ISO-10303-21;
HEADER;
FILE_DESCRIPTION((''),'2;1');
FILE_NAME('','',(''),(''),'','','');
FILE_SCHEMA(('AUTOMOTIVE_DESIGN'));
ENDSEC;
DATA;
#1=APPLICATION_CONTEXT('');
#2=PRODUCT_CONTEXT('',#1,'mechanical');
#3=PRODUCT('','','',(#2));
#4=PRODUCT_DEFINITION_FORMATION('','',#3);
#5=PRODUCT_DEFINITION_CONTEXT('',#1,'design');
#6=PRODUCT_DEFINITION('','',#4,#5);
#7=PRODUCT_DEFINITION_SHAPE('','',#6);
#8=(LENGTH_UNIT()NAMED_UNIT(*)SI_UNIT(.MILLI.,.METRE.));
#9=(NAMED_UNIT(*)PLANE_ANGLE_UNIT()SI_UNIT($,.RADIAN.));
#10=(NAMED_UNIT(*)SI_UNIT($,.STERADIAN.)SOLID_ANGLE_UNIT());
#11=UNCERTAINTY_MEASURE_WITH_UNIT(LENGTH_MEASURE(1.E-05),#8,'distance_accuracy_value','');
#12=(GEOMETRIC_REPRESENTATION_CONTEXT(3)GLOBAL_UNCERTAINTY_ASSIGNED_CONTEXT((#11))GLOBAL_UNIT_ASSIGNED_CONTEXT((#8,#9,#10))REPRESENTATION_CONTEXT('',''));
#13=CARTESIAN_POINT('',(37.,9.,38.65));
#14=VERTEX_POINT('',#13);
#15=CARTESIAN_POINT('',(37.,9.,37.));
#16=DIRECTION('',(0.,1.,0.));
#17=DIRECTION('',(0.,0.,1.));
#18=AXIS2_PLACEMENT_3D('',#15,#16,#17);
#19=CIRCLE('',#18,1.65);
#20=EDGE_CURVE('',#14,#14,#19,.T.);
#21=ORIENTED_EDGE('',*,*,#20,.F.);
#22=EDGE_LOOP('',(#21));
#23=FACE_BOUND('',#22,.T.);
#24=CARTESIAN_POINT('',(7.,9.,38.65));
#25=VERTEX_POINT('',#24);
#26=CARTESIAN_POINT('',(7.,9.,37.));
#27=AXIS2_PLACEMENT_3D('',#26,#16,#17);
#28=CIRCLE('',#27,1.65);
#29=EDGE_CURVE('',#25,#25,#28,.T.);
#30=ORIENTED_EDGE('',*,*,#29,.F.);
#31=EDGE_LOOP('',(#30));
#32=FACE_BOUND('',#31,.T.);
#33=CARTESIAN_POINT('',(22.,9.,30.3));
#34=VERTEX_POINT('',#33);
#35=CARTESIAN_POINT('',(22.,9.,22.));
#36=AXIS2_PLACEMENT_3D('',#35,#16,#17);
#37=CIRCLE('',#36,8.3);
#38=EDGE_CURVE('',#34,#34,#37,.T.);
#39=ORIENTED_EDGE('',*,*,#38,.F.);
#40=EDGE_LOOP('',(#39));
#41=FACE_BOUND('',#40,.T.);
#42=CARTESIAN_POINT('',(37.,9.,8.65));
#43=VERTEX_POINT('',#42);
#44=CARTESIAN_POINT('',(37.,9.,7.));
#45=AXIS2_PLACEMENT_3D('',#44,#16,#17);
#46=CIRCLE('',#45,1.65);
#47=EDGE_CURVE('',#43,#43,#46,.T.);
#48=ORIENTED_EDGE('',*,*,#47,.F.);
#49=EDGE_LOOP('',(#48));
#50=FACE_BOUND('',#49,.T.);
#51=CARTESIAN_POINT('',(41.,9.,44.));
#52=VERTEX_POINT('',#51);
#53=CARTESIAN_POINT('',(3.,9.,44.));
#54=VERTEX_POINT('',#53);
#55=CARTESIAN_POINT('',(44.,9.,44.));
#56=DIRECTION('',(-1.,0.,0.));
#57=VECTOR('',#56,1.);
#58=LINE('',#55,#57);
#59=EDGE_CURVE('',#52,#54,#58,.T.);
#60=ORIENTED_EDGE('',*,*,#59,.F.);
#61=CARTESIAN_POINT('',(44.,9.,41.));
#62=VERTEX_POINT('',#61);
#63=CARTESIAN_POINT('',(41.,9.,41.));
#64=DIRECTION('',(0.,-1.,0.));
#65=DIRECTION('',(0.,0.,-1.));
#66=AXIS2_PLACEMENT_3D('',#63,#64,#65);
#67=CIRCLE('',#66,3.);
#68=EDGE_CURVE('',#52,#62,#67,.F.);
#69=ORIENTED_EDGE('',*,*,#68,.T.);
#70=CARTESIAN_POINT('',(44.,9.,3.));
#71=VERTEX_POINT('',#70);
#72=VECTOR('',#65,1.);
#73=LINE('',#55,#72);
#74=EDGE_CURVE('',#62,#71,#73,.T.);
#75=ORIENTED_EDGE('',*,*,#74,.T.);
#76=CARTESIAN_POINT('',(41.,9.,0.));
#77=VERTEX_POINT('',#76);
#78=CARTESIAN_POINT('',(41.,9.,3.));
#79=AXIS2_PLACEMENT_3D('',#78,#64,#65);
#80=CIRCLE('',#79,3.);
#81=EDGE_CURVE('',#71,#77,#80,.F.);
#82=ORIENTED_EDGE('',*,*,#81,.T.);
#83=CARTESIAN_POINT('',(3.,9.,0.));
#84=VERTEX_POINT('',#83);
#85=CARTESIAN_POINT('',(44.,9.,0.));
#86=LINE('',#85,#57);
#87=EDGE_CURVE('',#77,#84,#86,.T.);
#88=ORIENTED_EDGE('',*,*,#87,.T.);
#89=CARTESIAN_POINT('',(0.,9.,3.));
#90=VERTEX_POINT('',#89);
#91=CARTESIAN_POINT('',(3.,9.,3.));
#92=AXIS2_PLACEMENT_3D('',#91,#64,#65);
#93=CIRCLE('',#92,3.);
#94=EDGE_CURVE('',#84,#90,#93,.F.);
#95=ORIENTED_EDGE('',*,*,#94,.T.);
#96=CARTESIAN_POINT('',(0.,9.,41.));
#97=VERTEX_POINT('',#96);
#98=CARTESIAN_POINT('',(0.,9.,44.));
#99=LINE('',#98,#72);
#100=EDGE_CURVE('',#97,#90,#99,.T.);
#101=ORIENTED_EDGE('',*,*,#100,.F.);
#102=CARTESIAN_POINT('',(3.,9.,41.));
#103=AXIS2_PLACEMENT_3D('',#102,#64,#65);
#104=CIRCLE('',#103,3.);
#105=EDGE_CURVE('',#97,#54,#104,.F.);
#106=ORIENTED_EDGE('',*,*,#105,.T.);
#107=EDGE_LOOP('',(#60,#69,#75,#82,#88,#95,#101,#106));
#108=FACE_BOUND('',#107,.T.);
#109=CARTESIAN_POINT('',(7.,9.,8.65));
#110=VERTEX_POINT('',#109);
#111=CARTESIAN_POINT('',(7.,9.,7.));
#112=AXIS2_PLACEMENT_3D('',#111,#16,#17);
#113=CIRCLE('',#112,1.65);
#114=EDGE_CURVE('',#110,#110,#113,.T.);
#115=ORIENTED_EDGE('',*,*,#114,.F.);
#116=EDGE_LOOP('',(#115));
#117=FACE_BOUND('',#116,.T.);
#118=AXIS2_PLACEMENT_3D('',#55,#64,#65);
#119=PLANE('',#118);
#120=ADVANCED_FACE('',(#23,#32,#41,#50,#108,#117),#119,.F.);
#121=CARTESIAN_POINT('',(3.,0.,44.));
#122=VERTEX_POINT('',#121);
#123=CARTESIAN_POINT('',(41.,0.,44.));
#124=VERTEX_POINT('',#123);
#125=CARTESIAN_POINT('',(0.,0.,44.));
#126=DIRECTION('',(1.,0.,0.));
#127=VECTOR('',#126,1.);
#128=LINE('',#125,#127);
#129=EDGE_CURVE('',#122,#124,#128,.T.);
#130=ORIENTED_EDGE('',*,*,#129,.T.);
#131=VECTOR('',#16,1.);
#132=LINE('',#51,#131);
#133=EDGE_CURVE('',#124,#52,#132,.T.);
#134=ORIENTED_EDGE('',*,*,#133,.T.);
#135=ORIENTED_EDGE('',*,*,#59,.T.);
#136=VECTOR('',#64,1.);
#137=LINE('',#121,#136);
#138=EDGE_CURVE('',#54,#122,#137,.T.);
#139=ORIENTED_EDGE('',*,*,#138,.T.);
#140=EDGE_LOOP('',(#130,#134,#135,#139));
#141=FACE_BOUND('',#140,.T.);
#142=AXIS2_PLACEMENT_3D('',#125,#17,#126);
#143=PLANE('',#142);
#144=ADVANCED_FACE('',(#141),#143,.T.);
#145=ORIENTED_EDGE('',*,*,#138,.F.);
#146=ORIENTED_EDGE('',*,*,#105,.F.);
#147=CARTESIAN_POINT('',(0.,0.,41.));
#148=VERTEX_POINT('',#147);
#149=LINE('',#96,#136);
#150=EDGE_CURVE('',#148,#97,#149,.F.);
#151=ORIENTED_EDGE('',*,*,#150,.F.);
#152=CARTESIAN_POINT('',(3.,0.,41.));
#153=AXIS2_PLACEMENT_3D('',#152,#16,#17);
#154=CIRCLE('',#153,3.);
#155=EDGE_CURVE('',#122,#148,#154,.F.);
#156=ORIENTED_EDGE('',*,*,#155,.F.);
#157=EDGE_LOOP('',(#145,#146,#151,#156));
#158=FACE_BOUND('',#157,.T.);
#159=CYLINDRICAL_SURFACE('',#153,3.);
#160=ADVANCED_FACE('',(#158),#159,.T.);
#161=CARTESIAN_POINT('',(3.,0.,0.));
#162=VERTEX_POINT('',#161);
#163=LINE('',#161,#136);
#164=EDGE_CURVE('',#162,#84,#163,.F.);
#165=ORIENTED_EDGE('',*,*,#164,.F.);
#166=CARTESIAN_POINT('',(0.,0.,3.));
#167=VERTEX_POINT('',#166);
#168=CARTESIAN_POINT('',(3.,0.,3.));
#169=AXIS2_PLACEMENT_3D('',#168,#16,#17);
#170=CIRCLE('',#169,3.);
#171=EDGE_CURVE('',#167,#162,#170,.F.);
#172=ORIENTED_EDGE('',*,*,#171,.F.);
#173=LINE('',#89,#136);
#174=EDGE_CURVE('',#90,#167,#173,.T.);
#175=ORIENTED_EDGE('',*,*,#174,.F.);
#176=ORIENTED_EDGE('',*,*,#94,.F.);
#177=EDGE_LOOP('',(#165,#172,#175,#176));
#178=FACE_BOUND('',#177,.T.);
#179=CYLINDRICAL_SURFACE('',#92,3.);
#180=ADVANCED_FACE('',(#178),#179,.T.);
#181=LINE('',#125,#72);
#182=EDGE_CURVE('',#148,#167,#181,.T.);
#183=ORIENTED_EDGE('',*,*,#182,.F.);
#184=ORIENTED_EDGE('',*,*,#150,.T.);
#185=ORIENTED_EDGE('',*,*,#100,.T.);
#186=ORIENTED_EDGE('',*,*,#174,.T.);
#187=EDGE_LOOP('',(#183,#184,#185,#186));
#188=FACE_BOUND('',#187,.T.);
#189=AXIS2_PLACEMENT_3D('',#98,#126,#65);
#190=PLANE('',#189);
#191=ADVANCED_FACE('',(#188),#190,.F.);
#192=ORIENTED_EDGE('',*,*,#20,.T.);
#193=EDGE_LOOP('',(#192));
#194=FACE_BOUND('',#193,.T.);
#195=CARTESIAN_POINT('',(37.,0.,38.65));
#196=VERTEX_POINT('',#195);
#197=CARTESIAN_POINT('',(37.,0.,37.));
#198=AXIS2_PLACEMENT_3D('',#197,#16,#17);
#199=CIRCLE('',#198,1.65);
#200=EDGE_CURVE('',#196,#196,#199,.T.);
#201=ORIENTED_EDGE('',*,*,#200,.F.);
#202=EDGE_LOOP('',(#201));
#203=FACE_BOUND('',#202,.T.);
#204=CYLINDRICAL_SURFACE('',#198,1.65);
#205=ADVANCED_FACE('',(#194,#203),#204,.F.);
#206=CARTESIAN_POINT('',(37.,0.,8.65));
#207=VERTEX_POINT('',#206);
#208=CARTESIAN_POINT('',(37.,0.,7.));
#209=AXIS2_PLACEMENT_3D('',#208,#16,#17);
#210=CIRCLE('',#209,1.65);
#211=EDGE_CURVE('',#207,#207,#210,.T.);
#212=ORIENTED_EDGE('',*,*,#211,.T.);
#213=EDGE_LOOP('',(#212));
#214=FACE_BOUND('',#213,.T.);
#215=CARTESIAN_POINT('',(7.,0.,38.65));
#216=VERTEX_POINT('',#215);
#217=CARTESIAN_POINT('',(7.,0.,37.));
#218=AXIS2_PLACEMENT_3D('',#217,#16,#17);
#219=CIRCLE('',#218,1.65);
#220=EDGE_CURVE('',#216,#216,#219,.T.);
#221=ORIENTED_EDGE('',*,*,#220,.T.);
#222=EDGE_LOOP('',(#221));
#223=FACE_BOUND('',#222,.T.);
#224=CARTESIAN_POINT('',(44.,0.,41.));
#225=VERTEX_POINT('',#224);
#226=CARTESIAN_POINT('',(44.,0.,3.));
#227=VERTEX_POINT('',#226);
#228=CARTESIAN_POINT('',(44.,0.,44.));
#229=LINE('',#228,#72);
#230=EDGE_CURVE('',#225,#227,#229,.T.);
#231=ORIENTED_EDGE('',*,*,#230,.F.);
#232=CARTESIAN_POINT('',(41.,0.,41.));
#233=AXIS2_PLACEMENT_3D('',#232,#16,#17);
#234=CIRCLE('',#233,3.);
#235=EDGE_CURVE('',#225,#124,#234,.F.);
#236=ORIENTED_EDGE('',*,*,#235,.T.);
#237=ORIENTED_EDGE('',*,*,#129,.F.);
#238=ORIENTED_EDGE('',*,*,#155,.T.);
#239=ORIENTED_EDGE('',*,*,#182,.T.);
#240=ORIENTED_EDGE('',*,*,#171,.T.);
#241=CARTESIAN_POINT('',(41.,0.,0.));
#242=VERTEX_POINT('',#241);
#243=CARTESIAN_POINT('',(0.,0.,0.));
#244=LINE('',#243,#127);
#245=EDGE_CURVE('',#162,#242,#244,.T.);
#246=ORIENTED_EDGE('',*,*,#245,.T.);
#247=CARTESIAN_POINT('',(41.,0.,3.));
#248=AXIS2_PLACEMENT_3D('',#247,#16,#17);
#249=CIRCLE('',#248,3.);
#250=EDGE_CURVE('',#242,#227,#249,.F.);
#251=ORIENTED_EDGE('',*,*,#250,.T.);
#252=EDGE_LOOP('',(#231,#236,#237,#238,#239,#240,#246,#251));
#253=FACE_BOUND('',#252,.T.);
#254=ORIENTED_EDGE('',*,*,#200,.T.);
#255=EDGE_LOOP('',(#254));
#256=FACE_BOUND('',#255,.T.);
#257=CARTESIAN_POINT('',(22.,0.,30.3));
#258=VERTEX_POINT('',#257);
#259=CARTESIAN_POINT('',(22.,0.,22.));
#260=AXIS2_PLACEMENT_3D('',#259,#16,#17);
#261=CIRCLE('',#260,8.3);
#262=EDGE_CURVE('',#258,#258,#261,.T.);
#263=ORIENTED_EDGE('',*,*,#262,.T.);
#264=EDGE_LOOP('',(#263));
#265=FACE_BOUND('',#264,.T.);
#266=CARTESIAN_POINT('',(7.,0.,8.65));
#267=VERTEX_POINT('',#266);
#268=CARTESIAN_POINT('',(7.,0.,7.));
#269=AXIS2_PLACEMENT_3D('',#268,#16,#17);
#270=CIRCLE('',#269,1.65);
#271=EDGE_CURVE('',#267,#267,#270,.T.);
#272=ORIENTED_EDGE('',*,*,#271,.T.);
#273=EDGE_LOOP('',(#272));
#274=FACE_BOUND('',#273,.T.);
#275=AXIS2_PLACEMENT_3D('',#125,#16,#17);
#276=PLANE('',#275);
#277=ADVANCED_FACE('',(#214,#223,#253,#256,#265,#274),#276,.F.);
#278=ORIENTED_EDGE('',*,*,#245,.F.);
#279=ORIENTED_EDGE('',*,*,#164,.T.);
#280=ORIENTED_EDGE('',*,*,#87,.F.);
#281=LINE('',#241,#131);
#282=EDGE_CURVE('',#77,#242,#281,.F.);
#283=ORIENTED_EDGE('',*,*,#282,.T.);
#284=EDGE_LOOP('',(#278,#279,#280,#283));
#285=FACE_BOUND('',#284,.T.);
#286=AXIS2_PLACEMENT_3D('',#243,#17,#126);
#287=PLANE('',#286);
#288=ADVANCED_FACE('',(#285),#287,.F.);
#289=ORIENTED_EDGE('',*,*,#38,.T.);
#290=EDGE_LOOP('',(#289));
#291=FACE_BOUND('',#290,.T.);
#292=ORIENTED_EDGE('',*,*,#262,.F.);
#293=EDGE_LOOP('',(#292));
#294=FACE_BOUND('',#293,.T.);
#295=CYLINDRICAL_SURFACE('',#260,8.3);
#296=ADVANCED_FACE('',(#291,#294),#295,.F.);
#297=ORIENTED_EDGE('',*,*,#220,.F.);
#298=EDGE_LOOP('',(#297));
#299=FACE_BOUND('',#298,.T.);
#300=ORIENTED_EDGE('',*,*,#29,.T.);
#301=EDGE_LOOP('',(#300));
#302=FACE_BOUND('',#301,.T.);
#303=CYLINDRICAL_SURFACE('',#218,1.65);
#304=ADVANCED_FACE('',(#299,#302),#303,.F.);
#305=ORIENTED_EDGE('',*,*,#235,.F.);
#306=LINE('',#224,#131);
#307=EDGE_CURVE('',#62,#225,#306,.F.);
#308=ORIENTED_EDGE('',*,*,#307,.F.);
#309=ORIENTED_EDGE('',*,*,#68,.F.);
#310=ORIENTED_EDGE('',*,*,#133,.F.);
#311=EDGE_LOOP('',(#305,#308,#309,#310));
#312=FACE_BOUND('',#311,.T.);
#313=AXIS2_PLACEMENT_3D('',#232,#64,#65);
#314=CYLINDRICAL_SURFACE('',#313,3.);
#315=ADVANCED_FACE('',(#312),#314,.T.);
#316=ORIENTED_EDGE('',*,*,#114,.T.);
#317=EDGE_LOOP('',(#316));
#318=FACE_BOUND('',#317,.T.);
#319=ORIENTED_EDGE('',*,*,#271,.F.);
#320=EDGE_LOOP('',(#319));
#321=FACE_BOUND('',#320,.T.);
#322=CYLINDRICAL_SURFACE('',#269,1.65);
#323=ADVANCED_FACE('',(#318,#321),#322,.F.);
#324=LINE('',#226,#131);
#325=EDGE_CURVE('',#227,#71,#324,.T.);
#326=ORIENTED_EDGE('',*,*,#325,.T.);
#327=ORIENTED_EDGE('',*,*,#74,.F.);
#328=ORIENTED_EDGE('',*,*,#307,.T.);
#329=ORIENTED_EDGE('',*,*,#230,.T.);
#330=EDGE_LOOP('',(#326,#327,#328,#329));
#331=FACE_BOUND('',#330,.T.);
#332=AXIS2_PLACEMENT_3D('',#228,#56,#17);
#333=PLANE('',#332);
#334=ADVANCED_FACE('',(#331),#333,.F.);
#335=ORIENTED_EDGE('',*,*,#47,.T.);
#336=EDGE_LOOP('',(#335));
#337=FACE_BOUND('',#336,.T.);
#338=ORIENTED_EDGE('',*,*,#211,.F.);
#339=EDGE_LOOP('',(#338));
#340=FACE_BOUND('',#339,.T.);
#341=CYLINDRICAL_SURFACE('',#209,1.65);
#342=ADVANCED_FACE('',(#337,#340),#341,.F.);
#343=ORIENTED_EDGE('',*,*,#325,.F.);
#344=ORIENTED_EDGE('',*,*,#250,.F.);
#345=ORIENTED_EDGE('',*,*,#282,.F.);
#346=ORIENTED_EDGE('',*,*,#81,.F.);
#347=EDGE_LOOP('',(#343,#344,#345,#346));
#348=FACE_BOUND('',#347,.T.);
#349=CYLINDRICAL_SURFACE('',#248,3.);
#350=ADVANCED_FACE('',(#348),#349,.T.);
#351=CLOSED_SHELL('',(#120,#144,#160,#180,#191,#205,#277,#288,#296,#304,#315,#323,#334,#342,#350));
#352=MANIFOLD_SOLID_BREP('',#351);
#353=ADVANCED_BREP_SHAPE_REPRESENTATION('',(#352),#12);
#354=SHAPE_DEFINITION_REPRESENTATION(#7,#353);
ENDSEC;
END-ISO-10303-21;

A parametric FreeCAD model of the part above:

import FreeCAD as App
import Part
import Sketcher
from FreeCAD import Vector
Q = App.Units.Quantity


def edges_at(feature, points):
    """Names of the edges that pass closest to the given points."""
    edges = feature.Shape.Edges
    near = lambda p: min(range(len(edges)), key=lambda i: edges[i].distToShape(Part.Vertex(*p))[0])
    return sorted({f"Edge{near(p) + 1}" for p in points})


def add_polygon(sketch, points):
    """Adds a closed chain of lines whose ends are joined by coincident constraints."""
    first, n = sketch.GeometryCount, len(points)
    for a, b in zip(points, points[1:] + points[:1]):
        sketch.addGeometry(Part.LineSegment(App.Vector(*a, 0), App.Vector(*b, 0)), False)
    for i in range(n):
        sketch.addConstraint(Sketcher.Constraint("Coincident", first + i, 2, first + (i + 1) % n, 1))

doc = App.newDocument("Part")
body = doc.addObject("PartDesign::Body", "Body")

# Sketch on XY plane
sketch1 = body.newObject("Sketcher::SketchObject", "Sketch")
sketch1.AttachmentSupport = (doc.getObject("XY_Plane"), [""])
sketch1.MapMode = "FlatFace"
add_polygon(sketch1, [(0, 9), (0, 0), (44, 0), (44, 9)])  # lines 0-3
sketch1.addConstraint(Sketcher.Constraint("Vertical", 0))
sketch1.addConstraint(Sketcher.Constraint("Horizontal", 1))
sketch1.addConstraint(Sketcher.Constraint("Vertical", 2))
sketch1.addConstraint(Sketcher.Constraint("Horizontal", 3))
sketch1.addConstraint(Sketcher.Constraint("Coincident", 0, 2, -1, 1))
sketch1.addConstraint(Sketcher.Constraint("DistanceX", 1, 1, 1, 2, Q("44 mm")))
sketch1.addConstraint(Sketcher.Constraint("DistanceY", 0, 2, 0, 1, Q("9 mm")))
pad1 = body.newObject("PartDesign::Pad", "Pad")
pad1.Profile = sketch1
pad1.Length = 44
doc.recompute()

fillet = body.newObject("PartDesign::Fillet", "Fillet")
fillet.Base = (pad1, edges_at(pad1, [
    (44, 4.5, 44),
    (0, 4.5, 44),
    (44, 4.5, 0),
    (0, 4.5, 0),
]))
fillet.Radius = 3

# Sketch on XZ plane
sketch2 = body.newObject("Sketcher::SketchObject", "Sketch001")
sketch2.AttachmentSupport = (doc.getObject("XZ_Plane"), [""])
sketch2.MapMode = "FlatFace"
sketch2.AttachmentOffset = App.Placement(Vector(0, 0, -9), App.Rotation())
sketch2.addGeometry(Part.Circle(Vector(22, 22, 0), Vector(0, 0, 1), 8), False)
sketch2.addConstraint(Sketcher.Constraint("Diameter", 0, Q("16.6 mm")))
sketch2.addConstraint(Sketcher.Constraint("DistanceX", -1, 1, 0, 3, Q("22 mm")))
sketch2.addConstraint(Sketcher.Constraint("DistanceY", -1, 1, 0, 3, Q("22 mm")))
pocket1 = body.newObject("PartDesign::Pocket", "Pocket")
pocket1.Profile = sketch2
pocket1.Type = "ThroughAll"
pocket1.Reversed = True

# Sketch on XZ plane
sketch3 = body.newObject("Sketcher::SketchObject", "Sketch002")
sketch3.AttachmentSupport = (doc.getObject("XZ_Plane"), [""])
sketch3.MapMode = "FlatFace"
sketch3.AttachmentOffset = App.Placement(Vector(0, 0, -9), App.Rotation())
sketch3.addGeometry(Part.Circle(Vector(7, 7, 0), Vector(0, 0, 1), 1.6), False)
sketch3.addConstraint(Sketcher.Constraint("Diameter", 0, Q("3.3 mm")))
sketch3.addConstraint(Sketcher.Constraint("DistanceX", -1, 1, 0, 3, Q("7 mm")))
sketch3.addConstraint(Sketcher.Constraint("DistanceY", -1, 1, 0, 3, Q("7 mm")))
pocket2 = body.newObject("PartDesign::Pocket", "Pocket001")
pocket2.Profile = sketch3
pocket2.Type = "ThroughAll"
pocket2.Reversed = True

# Sketch on XZ plane
sketch4 = body.newObject("Sketcher::SketchObject", "Sketch003")
sketch4.AttachmentSupport = (doc.getObject("XZ_Plane"), [""])
sketch4.MapMode = "FlatFace"
sketch4.AttachmentOffset = App.Placement(Vector(0, 0, -9), App.Rotation())
sketch4.addGeometry(Part.Circle(Vector(7, 37, 0), Vector(0, 0, 1), 1.6), False)
sketch4.addConstraint(Sketcher.Constraint("Diameter", 0, Q("3.3 mm")))
sketch4.addConstraint(Sketcher.Constraint("DistanceX", -1, 1, 0, 3, Q("7 mm")))
sketch4.addConstraint(Sketcher.Constraint("DistanceY", -1, 1, 0, 3, Q("37 mm")))
pocket3 = body.newObject("PartDesign::Pocket", "Pocket002")
pocket3.Profile = sketch4
pocket3.Type = "ThroughAll"
pocket3.Reversed = True

# Sketch on XZ plane
sketch5 = body.newObject("Sketcher::SketchObject", "Sketch004")
sketch5.AttachmentSupport = (doc.getObject("XZ_Plane"), [""])
sketch5.MapMode = "FlatFace"
sketch5.AttachmentOffset = App.Placement(Vector(0, 0, -9), App.Rotation())
sketch5.addGeometry(Part.Circle(Vector(37, 7, 0), Vector(0, 0, 1), 1.6), False)
sketch5.addConstraint(Sketcher.Constraint("Diameter", 0, Q("3.3 mm")))
sketch5.addConstraint(Sketcher.Constraint("DistanceX", -1, 1, 0, 3, Q("37 mm")))
sketch5.addConstraint(Sketcher.Constraint("DistanceY", -1, 1, 0, 3, Q("7 mm")))
pocket4 = body.newObject("PartDesign::Pocket", "Pocket003")
pocket4.Profile = sketch5
pocket4.Type = "ThroughAll"
pocket4.Reversed = True

# Sketch on XZ plane
sketch6 = body.newObject("Sketcher::SketchObject", "Sketch005")
sketch6.AttachmentSupport = (doc.getObject("XZ_Plane"), [""])
sketch6.MapMode = "FlatFace"
sketch6.AttachmentOffset = App.Placement(Vector(0, 0, -9), App.Rotation())
sketch6.addGeometry(Part.Circle(Vector(37, 37, 0), Vector(0, 0, 1), 1.6), False)
sketch6.addConstraint(Sketcher.Constraint("Diameter", 0, Q("3.3 mm")))
sketch6.addConstraint(Sketcher.Constraint("DistanceX", -1, 1, 0, 3, Q("37 mm")))
sketch6.addConstraint(Sketcher.Constraint("DistanceY", -1, 1, 0, 3, Q("37 mm")))
pocket5 = body.newObject("PartDesign::Pocket", "Pocket004")
pocket5.Profile = sketch6
pocket5.Type = "ThroughAll"
pocket5.Reversed = True

doc.recompute()
